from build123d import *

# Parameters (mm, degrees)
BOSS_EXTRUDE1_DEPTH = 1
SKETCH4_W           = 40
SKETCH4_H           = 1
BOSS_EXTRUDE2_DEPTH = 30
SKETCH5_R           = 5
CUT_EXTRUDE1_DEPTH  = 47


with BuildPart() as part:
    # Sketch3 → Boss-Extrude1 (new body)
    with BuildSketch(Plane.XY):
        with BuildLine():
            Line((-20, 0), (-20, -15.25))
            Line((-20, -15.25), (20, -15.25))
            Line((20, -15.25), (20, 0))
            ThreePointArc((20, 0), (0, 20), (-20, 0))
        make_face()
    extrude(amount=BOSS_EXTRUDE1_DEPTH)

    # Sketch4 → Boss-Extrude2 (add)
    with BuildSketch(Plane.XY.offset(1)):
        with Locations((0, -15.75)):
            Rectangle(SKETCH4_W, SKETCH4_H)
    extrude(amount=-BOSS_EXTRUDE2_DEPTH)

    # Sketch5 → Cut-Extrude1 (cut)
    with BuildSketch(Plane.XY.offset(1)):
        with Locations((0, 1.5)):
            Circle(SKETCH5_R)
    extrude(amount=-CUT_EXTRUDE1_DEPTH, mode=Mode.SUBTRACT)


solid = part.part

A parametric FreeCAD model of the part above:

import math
import FreeCAD as App
import Part
import Sketcher


def add_polygon(sketch, points):
    """Adds a closed chain of lines whose ends are joined by coincident constraints."""
    first, n = sketch.GeometryCount, len(points)
    for a, b in zip(points, points[1:] + points[:1]):
        sketch.addGeometry(Part.LineSegment(App.Vector(*a, 0), App.Vector(*b, 0)), False)
    for i in range(n):
        sketch.addConstraint(Sketcher.Constraint("Coincident", first + i, 2, first + (i + 1) % n, 1))

doc = App.newDocument("Part")
body = doc.addObject("PartDesign::Body", "Body")

# Sketch on XY plane
sketch1 = body.newObject("Sketcher::SketchObject", "Sketch")
sketch1.AttachmentSupport = (doc.getObject("XY_Plane"), [""])
sketch1.MapMode = "FlatFace"
sketch1.addGeometry([
    Part.LineSegment(App.Vector(-20, 0, 0), App.Vector(-20, -15, 0)),
    Part.LineSegment(App.Vector(-20, -15, 0), App.Vector(20, -15, 0)),
    Part.LineSegment(App.Vector(20, -15, 0), App.Vector(20, 0, 0)),
    Part.ArcOfCircle(Part.Circle(App.Vector(0, 0, 0), App.Vector(0, 0, 1), 20), math.radians(0), math.radians(180)),
], False)
sketch1.addConstraint([
    Sketcher.Constraint("Coincident", 0, 2, 1, 1),
    Sketcher.Constraint("Coincident", 1, 2, 2, 1),
    Sketcher.Constraint("Tangent", 2, 2, 3, 1),
    Sketcher.Constraint("Tangent", 3, 2, 0, 1),
    Sketcher.Constraint("Vertical", 0),
    Sketcher.Constraint("Horizontal", 1),
    Sketcher.Constraint("Vertical", 2),
    Sketcher.Constraint("Coincident", 3, 3, -1, 1),
    Sketcher.Constraint("Radius", 3, 20.0),
    Sketcher.Constraint("DistanceY", 0, 2, 0, 1, 15.25),
])
pad1 = body.newObject("PartDesign::Pad", "Pad")
pad1.Profile = sketch1
pad1.Length = 1

# Sketch on XY plane
sketch2 = body.newObject("Sketcher::SketchObject", "Sketch001")
sketch2.AttachmentSupport = (doc.getObject("XY_Plane"), [""])
sketch2.MapMode = "FlatFace"
sketch2.AttachmentOffset = App.Placement(App.Vector(0, 0, 1), App.Rotation())
add_polygon(sketch2, [(-20, -15.2), (-20, -16.2), (20, -16.2), (20, -15.2)])  # lines 0-3
sketch2.addConstraint([
    Sketcher.Constraint("Vertical", 0),
    Sketcher.Constraint("Horizontal", 1),
    Sketcher.Constraint("Vertical", 2),
    Sketcher.Constraint("Horizontal", 3),
    Sketcher.Constraint("DistanceX", 1, 1, 1, 2, 40.0),
    Sketcher.Constraint("DistanceY", 0, 2, 0, 1, 1.0),
    Sketcher.Constraint("DistanceX", 0, 2, -1, 1, 20.0),
    Sketcher.Constraint("DistanceY", 0, 2, -1, 1, 16.25),
])
pad2 = body.newObject("PartDesign::Pad", "Pad001")
pad2.Profile = sketch2
pad2.Length = 30
pad2.Reversed = True

# Sketch on XY plane
sketch3 = body.newObject("Sketcher::SketchObject", "Sketch002")
sketch3.AttachmentSupport = (doc.getObject("XY_Plane"), [""])
sketch3.MapMode = "FlatFace"
sketch3.AttachmentOffset = App.Placement(App.Vector(0, 0, 1), App.Rotation())
sketch3.addGeometry(Part.Circle(App.Vector(0, 2, 0), App.Vector(0, 0, 1), 5), False)
sketch3.addConstraint([
    Sketcher.Constraint("PointOnObject", 0, 3, -2),
    Sketcher.Constraint("Diameter", 0, 10.0),
    Sketcher.Constraint("DistanceY", -1, 1, 0, 3, 1.5),
])
pocket1 = body.newObject("PartDesign::Pocket", "Pocket")
pocket1.Profile = sketch3
pocket1.Length = 47

doc.recompute()
